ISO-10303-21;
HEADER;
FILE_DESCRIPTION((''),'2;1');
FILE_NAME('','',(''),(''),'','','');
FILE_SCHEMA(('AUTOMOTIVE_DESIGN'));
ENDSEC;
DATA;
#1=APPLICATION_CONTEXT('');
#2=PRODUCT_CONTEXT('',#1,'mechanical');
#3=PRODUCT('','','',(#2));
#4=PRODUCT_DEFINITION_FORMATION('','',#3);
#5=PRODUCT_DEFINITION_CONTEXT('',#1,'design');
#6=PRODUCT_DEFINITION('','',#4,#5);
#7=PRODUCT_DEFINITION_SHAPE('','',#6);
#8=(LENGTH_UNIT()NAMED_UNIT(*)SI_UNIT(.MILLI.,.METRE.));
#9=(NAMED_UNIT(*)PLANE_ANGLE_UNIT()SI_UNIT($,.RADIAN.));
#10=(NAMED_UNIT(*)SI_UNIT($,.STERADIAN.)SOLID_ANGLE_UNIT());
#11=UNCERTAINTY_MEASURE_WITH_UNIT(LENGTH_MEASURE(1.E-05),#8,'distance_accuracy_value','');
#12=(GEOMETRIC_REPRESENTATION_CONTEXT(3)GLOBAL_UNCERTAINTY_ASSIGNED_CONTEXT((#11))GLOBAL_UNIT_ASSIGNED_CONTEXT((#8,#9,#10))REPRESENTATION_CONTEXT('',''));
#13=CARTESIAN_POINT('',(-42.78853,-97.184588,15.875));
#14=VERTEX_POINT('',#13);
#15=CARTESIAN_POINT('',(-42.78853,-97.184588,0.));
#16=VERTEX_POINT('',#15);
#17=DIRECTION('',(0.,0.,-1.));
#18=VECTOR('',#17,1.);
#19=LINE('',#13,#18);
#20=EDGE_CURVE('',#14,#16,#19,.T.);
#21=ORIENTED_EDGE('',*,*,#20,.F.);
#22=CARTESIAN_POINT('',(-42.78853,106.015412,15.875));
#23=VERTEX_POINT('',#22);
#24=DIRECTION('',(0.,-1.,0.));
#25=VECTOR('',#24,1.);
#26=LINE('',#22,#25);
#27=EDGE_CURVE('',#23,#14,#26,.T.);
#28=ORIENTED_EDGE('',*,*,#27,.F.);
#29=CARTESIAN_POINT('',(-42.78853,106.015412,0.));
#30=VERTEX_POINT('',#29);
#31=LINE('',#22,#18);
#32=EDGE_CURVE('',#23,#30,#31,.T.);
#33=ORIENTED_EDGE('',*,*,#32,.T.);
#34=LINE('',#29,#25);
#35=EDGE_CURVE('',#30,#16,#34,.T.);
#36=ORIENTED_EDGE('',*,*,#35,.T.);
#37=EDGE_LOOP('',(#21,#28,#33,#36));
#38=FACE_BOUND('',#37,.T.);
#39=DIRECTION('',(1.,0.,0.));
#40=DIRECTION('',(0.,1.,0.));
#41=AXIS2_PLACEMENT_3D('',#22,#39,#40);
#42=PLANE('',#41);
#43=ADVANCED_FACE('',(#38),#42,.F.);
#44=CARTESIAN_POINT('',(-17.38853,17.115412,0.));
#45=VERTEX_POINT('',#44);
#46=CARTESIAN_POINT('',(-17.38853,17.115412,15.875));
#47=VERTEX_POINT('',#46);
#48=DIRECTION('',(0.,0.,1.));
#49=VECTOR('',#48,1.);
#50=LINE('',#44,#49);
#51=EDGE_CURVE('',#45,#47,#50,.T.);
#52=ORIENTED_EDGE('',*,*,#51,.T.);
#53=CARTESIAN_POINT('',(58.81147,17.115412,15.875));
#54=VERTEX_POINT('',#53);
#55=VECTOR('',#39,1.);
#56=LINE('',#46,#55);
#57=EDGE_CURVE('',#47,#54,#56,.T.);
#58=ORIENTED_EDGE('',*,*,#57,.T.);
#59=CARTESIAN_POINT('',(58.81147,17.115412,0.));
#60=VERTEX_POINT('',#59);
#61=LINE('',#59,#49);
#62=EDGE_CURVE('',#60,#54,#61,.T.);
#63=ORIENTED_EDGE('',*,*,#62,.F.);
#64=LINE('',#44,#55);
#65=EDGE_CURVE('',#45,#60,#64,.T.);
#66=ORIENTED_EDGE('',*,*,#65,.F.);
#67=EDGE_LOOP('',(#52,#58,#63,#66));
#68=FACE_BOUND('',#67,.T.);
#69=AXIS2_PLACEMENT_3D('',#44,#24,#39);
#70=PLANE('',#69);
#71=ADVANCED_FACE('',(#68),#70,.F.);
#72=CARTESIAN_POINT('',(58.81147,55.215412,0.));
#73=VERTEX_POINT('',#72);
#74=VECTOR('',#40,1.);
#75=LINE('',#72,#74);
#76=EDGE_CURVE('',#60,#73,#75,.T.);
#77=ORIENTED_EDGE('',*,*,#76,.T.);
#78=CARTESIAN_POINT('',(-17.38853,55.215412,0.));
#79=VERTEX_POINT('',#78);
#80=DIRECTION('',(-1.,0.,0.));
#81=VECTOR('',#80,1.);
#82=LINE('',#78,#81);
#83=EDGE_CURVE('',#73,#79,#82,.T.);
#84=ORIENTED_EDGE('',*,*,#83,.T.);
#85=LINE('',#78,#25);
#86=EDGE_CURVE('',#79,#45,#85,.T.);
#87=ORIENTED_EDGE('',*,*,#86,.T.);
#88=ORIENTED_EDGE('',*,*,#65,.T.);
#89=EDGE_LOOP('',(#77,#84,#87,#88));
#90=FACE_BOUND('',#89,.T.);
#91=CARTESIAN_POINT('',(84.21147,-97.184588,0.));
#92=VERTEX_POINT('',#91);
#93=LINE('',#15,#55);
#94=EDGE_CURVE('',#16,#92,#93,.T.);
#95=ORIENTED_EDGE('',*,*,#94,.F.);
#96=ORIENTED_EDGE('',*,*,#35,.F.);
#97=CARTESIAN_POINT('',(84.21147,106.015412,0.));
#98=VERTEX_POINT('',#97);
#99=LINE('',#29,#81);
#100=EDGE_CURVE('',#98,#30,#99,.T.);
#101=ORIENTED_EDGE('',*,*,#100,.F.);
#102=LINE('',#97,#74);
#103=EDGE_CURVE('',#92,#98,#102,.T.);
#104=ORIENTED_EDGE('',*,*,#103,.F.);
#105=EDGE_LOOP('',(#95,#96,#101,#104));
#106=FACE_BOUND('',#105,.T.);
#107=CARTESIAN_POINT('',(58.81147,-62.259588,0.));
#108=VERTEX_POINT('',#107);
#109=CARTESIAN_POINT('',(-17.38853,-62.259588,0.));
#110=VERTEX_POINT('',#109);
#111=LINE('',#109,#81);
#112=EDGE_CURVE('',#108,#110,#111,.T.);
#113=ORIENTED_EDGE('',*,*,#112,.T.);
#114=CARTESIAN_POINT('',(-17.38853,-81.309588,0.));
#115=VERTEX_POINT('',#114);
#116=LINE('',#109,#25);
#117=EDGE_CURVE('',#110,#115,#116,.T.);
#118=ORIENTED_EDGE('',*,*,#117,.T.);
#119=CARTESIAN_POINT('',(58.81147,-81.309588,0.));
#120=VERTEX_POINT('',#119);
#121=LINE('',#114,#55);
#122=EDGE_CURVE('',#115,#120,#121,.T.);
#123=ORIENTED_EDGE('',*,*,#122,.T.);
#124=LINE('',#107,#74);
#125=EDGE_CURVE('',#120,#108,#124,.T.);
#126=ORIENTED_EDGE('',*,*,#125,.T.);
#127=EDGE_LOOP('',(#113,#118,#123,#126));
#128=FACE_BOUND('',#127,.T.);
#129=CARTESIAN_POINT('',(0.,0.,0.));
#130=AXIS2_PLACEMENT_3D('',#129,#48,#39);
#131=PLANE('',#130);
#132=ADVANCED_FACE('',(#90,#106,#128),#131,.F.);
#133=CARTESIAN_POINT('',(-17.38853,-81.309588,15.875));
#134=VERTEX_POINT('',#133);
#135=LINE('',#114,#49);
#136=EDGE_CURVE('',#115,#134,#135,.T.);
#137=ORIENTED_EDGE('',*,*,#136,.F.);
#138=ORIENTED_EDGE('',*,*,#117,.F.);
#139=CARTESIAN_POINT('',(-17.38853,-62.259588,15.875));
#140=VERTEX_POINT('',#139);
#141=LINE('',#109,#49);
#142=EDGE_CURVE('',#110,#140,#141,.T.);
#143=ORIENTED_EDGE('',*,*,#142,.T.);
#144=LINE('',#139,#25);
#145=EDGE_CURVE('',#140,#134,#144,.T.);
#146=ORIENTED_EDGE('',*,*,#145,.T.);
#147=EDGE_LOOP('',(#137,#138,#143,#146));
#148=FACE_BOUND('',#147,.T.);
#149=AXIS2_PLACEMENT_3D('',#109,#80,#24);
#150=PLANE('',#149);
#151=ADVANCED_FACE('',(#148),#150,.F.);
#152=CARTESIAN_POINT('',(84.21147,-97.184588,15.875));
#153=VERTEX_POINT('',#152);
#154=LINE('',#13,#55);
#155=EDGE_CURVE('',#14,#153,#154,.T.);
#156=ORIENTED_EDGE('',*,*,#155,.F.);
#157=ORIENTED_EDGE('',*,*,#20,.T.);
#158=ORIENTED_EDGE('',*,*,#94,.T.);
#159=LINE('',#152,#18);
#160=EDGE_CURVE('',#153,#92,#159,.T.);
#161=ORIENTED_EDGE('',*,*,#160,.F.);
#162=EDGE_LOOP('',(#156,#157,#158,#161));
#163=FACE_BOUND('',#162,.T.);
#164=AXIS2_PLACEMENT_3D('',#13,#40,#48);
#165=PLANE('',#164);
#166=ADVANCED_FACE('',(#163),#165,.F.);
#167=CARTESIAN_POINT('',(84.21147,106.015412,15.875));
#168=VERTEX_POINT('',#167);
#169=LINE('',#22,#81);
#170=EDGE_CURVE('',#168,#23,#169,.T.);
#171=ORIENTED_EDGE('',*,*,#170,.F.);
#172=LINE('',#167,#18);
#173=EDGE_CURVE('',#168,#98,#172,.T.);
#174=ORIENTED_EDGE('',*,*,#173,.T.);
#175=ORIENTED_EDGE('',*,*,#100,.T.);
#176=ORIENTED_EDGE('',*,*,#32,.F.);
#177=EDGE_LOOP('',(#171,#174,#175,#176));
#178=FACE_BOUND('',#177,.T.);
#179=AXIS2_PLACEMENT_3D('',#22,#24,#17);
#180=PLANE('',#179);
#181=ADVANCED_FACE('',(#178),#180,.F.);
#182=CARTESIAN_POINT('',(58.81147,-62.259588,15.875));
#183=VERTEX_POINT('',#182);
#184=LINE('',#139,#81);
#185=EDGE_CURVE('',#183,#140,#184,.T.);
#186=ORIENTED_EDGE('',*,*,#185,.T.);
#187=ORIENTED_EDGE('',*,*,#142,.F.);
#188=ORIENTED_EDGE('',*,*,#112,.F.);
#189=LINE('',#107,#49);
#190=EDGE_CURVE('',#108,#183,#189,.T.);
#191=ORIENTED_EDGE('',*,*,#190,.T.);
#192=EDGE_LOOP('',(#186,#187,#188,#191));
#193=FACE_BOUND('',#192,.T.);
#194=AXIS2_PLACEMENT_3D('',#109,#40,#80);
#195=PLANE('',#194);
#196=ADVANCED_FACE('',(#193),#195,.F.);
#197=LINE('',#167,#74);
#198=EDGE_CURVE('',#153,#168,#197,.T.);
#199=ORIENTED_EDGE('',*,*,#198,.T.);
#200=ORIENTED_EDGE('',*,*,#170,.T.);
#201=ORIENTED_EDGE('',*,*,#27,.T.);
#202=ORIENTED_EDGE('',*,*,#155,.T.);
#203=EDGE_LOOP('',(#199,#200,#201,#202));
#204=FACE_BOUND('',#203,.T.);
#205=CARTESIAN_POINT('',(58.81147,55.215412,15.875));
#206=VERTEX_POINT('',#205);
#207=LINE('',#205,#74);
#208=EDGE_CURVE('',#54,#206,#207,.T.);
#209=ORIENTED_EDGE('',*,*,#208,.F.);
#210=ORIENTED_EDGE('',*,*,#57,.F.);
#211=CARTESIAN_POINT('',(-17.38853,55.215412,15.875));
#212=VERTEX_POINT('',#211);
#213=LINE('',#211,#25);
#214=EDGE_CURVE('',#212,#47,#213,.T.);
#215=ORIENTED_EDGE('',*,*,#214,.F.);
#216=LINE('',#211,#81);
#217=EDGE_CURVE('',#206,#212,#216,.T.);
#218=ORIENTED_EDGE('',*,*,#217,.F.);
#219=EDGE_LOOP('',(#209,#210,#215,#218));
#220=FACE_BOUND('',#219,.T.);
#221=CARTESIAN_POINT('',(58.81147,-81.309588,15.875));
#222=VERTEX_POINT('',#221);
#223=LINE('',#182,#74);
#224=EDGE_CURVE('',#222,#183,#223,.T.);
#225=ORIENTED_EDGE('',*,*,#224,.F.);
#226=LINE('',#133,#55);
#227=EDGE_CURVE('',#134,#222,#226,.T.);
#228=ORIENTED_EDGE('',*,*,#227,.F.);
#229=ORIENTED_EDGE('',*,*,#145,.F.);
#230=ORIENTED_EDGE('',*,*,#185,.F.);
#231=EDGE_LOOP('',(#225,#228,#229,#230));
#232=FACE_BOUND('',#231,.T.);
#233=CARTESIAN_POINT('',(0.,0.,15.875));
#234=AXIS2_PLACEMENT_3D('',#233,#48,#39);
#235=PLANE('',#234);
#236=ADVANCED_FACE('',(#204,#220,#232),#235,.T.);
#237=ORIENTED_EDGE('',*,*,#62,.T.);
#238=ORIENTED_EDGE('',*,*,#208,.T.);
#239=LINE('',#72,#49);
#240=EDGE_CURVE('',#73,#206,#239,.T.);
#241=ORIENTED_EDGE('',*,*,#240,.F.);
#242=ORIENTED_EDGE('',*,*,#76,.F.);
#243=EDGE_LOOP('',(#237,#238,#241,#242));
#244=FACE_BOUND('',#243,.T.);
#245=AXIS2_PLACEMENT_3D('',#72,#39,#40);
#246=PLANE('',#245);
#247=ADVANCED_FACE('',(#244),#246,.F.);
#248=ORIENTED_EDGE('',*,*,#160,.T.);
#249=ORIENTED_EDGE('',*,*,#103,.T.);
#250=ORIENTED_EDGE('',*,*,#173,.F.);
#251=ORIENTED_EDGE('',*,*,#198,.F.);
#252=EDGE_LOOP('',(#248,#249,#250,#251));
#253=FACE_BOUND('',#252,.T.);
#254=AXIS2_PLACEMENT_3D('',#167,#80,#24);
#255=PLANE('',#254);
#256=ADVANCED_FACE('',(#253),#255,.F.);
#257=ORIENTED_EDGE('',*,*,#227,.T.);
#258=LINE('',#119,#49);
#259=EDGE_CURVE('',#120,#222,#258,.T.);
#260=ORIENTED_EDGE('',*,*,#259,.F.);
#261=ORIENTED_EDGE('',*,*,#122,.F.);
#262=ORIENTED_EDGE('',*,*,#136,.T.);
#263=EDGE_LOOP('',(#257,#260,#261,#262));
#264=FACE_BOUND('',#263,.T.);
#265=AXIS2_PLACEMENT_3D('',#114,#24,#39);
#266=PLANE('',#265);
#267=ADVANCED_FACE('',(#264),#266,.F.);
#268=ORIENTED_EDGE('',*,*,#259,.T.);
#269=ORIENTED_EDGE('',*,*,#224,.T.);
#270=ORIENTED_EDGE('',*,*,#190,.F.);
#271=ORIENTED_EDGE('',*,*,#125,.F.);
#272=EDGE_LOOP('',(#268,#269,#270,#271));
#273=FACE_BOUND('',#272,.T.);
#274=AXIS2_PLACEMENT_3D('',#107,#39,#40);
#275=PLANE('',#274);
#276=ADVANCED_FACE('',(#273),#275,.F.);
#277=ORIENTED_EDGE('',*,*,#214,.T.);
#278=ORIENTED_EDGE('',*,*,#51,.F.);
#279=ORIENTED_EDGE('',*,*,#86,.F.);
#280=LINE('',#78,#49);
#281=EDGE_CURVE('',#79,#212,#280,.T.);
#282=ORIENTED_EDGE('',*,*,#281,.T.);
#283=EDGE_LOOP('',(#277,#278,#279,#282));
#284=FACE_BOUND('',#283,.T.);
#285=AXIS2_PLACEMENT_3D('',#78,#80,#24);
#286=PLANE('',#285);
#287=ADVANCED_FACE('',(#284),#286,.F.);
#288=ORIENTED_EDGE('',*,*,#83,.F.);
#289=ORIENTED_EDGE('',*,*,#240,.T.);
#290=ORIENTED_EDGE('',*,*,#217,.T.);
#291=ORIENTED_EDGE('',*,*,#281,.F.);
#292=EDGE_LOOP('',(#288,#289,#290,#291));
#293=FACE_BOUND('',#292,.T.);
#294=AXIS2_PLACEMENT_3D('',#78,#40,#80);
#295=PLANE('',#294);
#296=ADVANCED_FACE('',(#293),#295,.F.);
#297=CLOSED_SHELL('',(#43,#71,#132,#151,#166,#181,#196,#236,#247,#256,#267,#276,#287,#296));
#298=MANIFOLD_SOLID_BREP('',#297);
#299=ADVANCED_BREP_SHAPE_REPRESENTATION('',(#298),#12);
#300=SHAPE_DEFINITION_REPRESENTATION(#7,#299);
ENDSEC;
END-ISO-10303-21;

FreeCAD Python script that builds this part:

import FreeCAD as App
import Part
import Sketcher
Q = App.Units.Quantity

doc = App.newDocument("Part")
body = doc.addObject("PartDesign::Body", "Body")

sketch1 = doc.addObject("Sketcher::SketchObject", "Sketch")
body.addObject(sketch1)
sketch1.AttachmentSupport = (doc.XY_Plane, [""])
sketch1.MapMode = "FlatFace"
sketch1.addGeometry([
    Part.LineSegment(App.Vector(-43, 106, 0), App.Vector(-43, -97, 0)),
    Part.LineSegment(App.Vector(-43, -97, 0), App.Vector(84, -97, 0)),
    Part.LineSegment(App.Vector(84, -97, 0), App.Vector(84, 106, 0)),
    Part.LineSegment(App.Vector(84, 106, 0), App.Vector(-43, 106, 0)),
], False)
sketch1.addConstraint([
    Sketcher.Constraint("Coincident", 0, 2, 1, 1),
    Sketcher.Constraint("Coincident", 1, 2, 2, 1),
    Sketcher.Constraint("Coincident", 2, 2, 3, 1),
    Sketcher.Constraint("Coincident", 3, 2, 0, 1),
    Sketcher.Constraint("Vertical", 0),
    Sketcher.Constraint("Horizontal", 1),
    Sketcher.Constraint("Vertical", 2),
    Sketcher.Constraint("Horizontal", 3),
    Sketcher.Constraint("DistanceX", 1, 1, 1, 2, Q("5 in")),
    Sketcher.Constraint("DistanceY", 0, 2, 0, 1, Q("8 in")),
    Sketcher.Constraint("DistanceX", 0, 2, -1, 1, Q("42.78853 mm")),
    Sketcher.Constraint("DistanceY", 0, 2, -1, 1, Q("97.184588 mm")),
])
pad1 = doc.addObject("PartDesign::Pad", "Pad")
body.addObject(pad1)
pad1.Profile = sketch1
pad1.Length = Q("0.625 in")

sketch2 = doc.addObject("Sketcher::SketchObject", "Sketch001")
body.addObject(sketch2)
sketch2.AttachmentSupport = (doc.XY_Plane, [""])
sketch2.MapMode = "FlatFace"
sketch2.AttachmentOffset = App.Placement(App.Vector(0, 0, 0.625 * 25.4), App.Rotation())
sketch2.addGeometry([
    Part.LineSegment(App.Vector(-17, 55, 0), App.Vector(-17, 17, 0)),
    Part.LineSegment(App.Vector(-17, 17, 0), App.Vector(59, 17, 0)),
    Part.LineSegment(App.Vector(59, 17, 0), App.Vector(59, 55, 0)),
    Part.LineSegment(App.Vector(59, 55, 0), App.Vector(-17, 55, 0)),
    Part.LineSegment(App.Vector(-17, -62, 0), App.Vector(-17, -81, 0)),
    Part.LineSegment(App.Vector(-17, -81, 0), App.Vector(59, -81, 0)),
    Part.LineSegment(App.Vector(59, -81, 0), App.Vector(59, -62, 0)),
    Part.LineSegment(App.Vector(59, -62, 0), App.Vector(-17, -62, 0)),
], False)
sketch2.addConstraint([
    Sketcher.Constraint("Coincident", 0, 2, 1, 1),
    Sketcher.Constraint("Coincident", 1, 2, 2, 1),
    Sketcher.Constraint("Coincident", 2, 2, 3, 1),
    Sketcher.Constraint("Coincident", 3, 2, 0, 1),
    Sketcher.Constraint("Coincident", 4, 2, 5, 1),
    Sketcher.Constraint("Coincident", 5, 2, 6, 1),
    Sketcher.Constraint("Coincident", 6, 2, 7, 1),
    Sketcher.Constraint("Coincident", 7, 2, 4, 1),
    Sketcher.Constraint("Vertical", 0),
    Sketcher.Constraint("Horizontal", 1),
    Sketcher.Constraint("Vertical", 2),
    Sketcher.Constraint("Horizontal", 3),
    Sketcher.Constraint("Vertical", 4),
    Sketcher.Constraint("Horizontal", 5),
    Sketcher.Constraint("Vertical", 6),
    Sketcher.Constraint("Horizontal", 7),
    Sketcher.Constraint("Vertical", 3, 2, 4, 2),
    Sketcher.Constraint("Vertical", 2, 2, 5, 2),
    Sketcher.Constraint("DistanceX", 1, 1, 1, 2, Q("3 in")),
    Sketcher.Constraint("DistanceY", 0, 2, 0, 1, Q("1.5 in")),
    Sketcher.Constraint("DistanceY", 4, 2, 4, 1, Q("0.75 in")),
    Sketcher.Constraint("DistanceY", 4, 2, 0, 2, Q("3.875 in")),
    Sketcher.Constraint("DistanceX", 0, 2, -1, 1, Q("17.38853 mm")),
    Sketcher.Constraint("DistanceY", -1, 1, 0, 2, Q("17.115412 mm")),
])
pocket1 = doc.addObject("PartDesign::Pocket", "Pocket")
body.addObject(pocket1)
pocket1.Profile = sketch2
pocket1.Type = "ThroughAll"

doc.recompute()
